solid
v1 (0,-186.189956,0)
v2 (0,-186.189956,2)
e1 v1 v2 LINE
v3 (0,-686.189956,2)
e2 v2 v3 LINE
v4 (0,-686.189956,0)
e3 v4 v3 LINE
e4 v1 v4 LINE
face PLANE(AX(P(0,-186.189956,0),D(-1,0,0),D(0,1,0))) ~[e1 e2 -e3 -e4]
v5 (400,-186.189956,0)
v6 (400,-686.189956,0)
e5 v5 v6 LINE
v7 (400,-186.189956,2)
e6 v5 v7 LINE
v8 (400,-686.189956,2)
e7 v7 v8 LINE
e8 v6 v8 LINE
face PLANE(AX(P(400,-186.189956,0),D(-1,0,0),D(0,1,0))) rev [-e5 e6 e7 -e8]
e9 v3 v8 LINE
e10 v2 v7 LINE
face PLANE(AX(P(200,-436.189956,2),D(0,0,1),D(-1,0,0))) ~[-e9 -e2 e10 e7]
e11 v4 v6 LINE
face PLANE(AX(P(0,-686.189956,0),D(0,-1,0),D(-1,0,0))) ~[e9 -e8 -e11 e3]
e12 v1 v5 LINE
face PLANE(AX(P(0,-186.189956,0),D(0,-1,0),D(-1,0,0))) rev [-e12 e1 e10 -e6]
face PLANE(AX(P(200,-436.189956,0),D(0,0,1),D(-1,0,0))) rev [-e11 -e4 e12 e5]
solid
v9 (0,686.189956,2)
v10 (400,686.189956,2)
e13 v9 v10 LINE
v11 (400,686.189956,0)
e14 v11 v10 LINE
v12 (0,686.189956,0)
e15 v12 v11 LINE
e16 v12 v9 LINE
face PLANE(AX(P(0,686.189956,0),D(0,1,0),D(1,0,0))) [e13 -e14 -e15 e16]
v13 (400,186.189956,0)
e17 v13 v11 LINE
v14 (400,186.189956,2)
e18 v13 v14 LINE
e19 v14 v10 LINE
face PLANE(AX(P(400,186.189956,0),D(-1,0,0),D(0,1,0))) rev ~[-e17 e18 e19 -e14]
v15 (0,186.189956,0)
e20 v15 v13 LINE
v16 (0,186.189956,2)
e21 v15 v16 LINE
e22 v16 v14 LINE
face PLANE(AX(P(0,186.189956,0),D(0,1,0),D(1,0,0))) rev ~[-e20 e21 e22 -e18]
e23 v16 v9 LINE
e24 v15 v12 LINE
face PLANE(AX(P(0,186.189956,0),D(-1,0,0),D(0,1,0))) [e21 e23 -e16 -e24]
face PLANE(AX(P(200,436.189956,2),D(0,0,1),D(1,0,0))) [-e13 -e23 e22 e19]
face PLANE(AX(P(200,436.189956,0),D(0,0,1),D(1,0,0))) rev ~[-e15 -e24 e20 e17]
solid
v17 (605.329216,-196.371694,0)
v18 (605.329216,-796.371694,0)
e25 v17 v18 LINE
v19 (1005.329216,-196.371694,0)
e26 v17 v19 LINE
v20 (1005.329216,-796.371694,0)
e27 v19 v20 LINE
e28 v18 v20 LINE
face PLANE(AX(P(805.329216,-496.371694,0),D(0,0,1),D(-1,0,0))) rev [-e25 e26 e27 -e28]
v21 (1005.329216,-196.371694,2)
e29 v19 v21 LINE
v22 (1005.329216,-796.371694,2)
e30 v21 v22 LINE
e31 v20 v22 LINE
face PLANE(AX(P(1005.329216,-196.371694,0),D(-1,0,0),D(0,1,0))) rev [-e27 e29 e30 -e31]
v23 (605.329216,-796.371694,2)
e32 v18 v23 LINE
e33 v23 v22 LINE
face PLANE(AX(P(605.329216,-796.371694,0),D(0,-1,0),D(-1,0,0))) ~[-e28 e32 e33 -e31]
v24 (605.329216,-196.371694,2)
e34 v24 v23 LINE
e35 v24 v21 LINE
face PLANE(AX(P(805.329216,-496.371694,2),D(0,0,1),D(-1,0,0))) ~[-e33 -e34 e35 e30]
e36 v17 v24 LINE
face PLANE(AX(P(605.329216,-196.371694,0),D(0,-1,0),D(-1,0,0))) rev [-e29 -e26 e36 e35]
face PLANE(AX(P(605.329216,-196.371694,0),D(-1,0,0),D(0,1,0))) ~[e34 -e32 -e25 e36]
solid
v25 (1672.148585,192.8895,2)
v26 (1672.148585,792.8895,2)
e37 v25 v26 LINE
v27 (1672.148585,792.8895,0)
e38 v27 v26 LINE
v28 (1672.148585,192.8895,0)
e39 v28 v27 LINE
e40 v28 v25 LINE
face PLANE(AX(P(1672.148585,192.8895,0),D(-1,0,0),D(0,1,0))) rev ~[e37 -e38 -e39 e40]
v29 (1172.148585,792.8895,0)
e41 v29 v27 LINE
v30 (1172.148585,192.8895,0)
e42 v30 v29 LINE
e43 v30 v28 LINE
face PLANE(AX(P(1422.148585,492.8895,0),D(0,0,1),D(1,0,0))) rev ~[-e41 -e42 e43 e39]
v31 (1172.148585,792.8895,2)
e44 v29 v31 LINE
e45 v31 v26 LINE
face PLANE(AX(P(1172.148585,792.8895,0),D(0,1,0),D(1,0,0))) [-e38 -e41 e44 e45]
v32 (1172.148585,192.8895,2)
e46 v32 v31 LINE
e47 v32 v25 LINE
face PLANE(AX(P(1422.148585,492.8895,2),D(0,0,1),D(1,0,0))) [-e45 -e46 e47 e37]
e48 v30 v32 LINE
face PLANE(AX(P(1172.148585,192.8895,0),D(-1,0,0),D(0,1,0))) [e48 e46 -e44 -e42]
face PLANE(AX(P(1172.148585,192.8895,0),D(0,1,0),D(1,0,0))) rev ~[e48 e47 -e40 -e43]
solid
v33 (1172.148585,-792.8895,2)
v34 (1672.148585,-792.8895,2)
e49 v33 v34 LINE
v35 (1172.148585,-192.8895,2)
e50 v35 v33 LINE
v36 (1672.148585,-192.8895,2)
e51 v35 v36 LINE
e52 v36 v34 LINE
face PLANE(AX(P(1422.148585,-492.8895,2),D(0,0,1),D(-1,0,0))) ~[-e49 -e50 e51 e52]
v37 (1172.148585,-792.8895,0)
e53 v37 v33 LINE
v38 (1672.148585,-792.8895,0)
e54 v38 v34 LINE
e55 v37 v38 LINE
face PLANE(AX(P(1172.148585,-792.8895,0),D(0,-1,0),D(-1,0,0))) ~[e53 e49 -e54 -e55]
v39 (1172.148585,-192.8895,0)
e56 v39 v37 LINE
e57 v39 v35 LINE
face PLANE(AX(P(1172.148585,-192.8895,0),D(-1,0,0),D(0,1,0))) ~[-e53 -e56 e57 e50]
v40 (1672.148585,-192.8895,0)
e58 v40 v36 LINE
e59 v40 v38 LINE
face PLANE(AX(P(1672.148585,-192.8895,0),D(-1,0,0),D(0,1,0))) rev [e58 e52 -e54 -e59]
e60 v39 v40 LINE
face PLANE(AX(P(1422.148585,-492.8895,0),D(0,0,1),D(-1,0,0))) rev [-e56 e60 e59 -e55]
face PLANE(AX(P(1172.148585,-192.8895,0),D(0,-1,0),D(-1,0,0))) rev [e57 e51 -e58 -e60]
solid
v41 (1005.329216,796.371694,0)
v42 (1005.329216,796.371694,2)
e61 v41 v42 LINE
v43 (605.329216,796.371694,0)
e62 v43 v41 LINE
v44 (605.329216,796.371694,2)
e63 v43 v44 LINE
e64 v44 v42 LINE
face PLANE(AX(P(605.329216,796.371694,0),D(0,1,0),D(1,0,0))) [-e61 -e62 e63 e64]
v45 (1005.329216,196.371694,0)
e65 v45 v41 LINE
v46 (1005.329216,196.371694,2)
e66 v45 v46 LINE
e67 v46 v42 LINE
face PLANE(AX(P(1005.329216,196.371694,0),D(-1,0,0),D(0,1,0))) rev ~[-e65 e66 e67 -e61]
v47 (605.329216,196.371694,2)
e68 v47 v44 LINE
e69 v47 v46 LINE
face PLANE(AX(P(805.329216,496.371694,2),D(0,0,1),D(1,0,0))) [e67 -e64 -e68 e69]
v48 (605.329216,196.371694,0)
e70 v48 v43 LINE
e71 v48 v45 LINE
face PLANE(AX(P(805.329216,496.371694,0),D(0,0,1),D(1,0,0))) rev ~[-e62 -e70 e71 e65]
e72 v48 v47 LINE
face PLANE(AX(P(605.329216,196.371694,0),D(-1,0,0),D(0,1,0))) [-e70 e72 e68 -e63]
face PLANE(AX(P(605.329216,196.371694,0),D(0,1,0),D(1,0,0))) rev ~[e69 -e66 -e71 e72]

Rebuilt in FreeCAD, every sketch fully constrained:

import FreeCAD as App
import Part
import Sketcher


def add_polygon(sketch, points):
    """Adds a closed chain of lines whose ends are joined by coincident constraints."""
    first, n = sketch.GeometryCount, len(points)
    for a, b in zip(points, points[1:] + points[:1]):
        sketch.addGeometry(Part.LineSegment(App.Vector(*a, 0), App.Vector(*b, 0)), False)
    for i in range(n):
        sketch.addConstraint(Sketcher.Constraint("Coincident", first + i, 2, first + (i + 1) % n, 1))

doc = App.newDocument("Part")
body = doc.addObject("PartDesign::Body", "Body")
body.AllowCompound = True

# Sketch on XY plane
sketch1 = body.newObject("Sketcher::SketchObject", "Sketch")
sketch1.AttachmentSupport = (doc.getObject("XY_Plane"), [""])
sketch1.MapMode = "FlatFace"
add_polygon(sketch1, [(0, 686.189956), (0, 186.189956), (400, 186.189956), (400, 686.189956)])  # lines 0-3
add_polygon(sketch1, [(605.329216, 796.371694), (605.329216, 196.371694), (1005.329216, 196.371694), (1005.329216, 796.371694)])  # lines 4-7
add_polygon(sketch1, [(1172.148585, 792.8895), (1172.148585, 192.8895), (1672.148585, 192.8895), (1672.148585, 792.8895)])  # lines 8-11
sketch1.addConstraint([
    Sketcher.Constraint("Vertical", 0),
    Sketcher.Constraint("Horizontal", 1),
    Sketcher.Constraint("Vertical", 2),
    Sketcher.Constraint("Horizontal", 3),
    Sketcher.Constraint("Vertical", 4),
    Sketcher.Constraint("Horizontal", 5),
    Sketcher.Constraint("Vertical", 6),
    Sketcher.Constraint("Horizontal", 7),
    Sketcher.Constraint("Vertical", 8),
    Sketcher.Constraint("Horizontal", 9),
    Sketcher.Constraint("Vertical", 10),
    Sketcher.Constraint("Horizontal", 11),
    Sketcher.Constraint("PointOnObject", 0, 2, -2),
    Sketcher.Constraint("Equal", 3, 5),
    Sketcher.Constraint("Equal", 11, 0),
    Sketcher.Constraint("Equal", 6, 8),
    Sketcher.Constraint("DistanceX", 1, 1, 1, 2, 400.0),
    Sketcher.Constraint("DistanceX", 9, 1, 9, 2, 500.0),
    Sketcher.Constraint("DistanceY", 4, 2, 4, 1, 600.0),
    Sketcher.Constraint("DistanceY", -1, 1, 8, 2, 192.8895),
    Sketcher.Constraint("DistanceY", 1, 2, 6, 2, 610.181738),
    Sketcher.Constraint("DistanceX", 5, 2, 8, 2, 166.819369),
    Sketcher.Constraint("DistanceY", -1, 1, 0, 2, 186.189956),
    Sketcher.Constraint("DistanceX", -1, 1, 4, 2, 605.329216),
])
pad1 = body.newObject("PartDesign::Pad", "Pad")
pad1.Profile = sketch1
pad1.Length = 2
body2 = doc.addObject("PartDesign::Body", "Body001")
body2.AllowCompound = True
doc.recompute()

mirroring = doc.addObject("Part::Mirroring", "Mirroring")
mirroring.Source = body
mirroring.Base = App.Vector(0, 0, 0)
mirroring.Normal = App.Vector(0, -1, 0)
body2.BaseFeature = mirroring
doc.recompute()
mirroring.Visibility = False

doc.recompute()
